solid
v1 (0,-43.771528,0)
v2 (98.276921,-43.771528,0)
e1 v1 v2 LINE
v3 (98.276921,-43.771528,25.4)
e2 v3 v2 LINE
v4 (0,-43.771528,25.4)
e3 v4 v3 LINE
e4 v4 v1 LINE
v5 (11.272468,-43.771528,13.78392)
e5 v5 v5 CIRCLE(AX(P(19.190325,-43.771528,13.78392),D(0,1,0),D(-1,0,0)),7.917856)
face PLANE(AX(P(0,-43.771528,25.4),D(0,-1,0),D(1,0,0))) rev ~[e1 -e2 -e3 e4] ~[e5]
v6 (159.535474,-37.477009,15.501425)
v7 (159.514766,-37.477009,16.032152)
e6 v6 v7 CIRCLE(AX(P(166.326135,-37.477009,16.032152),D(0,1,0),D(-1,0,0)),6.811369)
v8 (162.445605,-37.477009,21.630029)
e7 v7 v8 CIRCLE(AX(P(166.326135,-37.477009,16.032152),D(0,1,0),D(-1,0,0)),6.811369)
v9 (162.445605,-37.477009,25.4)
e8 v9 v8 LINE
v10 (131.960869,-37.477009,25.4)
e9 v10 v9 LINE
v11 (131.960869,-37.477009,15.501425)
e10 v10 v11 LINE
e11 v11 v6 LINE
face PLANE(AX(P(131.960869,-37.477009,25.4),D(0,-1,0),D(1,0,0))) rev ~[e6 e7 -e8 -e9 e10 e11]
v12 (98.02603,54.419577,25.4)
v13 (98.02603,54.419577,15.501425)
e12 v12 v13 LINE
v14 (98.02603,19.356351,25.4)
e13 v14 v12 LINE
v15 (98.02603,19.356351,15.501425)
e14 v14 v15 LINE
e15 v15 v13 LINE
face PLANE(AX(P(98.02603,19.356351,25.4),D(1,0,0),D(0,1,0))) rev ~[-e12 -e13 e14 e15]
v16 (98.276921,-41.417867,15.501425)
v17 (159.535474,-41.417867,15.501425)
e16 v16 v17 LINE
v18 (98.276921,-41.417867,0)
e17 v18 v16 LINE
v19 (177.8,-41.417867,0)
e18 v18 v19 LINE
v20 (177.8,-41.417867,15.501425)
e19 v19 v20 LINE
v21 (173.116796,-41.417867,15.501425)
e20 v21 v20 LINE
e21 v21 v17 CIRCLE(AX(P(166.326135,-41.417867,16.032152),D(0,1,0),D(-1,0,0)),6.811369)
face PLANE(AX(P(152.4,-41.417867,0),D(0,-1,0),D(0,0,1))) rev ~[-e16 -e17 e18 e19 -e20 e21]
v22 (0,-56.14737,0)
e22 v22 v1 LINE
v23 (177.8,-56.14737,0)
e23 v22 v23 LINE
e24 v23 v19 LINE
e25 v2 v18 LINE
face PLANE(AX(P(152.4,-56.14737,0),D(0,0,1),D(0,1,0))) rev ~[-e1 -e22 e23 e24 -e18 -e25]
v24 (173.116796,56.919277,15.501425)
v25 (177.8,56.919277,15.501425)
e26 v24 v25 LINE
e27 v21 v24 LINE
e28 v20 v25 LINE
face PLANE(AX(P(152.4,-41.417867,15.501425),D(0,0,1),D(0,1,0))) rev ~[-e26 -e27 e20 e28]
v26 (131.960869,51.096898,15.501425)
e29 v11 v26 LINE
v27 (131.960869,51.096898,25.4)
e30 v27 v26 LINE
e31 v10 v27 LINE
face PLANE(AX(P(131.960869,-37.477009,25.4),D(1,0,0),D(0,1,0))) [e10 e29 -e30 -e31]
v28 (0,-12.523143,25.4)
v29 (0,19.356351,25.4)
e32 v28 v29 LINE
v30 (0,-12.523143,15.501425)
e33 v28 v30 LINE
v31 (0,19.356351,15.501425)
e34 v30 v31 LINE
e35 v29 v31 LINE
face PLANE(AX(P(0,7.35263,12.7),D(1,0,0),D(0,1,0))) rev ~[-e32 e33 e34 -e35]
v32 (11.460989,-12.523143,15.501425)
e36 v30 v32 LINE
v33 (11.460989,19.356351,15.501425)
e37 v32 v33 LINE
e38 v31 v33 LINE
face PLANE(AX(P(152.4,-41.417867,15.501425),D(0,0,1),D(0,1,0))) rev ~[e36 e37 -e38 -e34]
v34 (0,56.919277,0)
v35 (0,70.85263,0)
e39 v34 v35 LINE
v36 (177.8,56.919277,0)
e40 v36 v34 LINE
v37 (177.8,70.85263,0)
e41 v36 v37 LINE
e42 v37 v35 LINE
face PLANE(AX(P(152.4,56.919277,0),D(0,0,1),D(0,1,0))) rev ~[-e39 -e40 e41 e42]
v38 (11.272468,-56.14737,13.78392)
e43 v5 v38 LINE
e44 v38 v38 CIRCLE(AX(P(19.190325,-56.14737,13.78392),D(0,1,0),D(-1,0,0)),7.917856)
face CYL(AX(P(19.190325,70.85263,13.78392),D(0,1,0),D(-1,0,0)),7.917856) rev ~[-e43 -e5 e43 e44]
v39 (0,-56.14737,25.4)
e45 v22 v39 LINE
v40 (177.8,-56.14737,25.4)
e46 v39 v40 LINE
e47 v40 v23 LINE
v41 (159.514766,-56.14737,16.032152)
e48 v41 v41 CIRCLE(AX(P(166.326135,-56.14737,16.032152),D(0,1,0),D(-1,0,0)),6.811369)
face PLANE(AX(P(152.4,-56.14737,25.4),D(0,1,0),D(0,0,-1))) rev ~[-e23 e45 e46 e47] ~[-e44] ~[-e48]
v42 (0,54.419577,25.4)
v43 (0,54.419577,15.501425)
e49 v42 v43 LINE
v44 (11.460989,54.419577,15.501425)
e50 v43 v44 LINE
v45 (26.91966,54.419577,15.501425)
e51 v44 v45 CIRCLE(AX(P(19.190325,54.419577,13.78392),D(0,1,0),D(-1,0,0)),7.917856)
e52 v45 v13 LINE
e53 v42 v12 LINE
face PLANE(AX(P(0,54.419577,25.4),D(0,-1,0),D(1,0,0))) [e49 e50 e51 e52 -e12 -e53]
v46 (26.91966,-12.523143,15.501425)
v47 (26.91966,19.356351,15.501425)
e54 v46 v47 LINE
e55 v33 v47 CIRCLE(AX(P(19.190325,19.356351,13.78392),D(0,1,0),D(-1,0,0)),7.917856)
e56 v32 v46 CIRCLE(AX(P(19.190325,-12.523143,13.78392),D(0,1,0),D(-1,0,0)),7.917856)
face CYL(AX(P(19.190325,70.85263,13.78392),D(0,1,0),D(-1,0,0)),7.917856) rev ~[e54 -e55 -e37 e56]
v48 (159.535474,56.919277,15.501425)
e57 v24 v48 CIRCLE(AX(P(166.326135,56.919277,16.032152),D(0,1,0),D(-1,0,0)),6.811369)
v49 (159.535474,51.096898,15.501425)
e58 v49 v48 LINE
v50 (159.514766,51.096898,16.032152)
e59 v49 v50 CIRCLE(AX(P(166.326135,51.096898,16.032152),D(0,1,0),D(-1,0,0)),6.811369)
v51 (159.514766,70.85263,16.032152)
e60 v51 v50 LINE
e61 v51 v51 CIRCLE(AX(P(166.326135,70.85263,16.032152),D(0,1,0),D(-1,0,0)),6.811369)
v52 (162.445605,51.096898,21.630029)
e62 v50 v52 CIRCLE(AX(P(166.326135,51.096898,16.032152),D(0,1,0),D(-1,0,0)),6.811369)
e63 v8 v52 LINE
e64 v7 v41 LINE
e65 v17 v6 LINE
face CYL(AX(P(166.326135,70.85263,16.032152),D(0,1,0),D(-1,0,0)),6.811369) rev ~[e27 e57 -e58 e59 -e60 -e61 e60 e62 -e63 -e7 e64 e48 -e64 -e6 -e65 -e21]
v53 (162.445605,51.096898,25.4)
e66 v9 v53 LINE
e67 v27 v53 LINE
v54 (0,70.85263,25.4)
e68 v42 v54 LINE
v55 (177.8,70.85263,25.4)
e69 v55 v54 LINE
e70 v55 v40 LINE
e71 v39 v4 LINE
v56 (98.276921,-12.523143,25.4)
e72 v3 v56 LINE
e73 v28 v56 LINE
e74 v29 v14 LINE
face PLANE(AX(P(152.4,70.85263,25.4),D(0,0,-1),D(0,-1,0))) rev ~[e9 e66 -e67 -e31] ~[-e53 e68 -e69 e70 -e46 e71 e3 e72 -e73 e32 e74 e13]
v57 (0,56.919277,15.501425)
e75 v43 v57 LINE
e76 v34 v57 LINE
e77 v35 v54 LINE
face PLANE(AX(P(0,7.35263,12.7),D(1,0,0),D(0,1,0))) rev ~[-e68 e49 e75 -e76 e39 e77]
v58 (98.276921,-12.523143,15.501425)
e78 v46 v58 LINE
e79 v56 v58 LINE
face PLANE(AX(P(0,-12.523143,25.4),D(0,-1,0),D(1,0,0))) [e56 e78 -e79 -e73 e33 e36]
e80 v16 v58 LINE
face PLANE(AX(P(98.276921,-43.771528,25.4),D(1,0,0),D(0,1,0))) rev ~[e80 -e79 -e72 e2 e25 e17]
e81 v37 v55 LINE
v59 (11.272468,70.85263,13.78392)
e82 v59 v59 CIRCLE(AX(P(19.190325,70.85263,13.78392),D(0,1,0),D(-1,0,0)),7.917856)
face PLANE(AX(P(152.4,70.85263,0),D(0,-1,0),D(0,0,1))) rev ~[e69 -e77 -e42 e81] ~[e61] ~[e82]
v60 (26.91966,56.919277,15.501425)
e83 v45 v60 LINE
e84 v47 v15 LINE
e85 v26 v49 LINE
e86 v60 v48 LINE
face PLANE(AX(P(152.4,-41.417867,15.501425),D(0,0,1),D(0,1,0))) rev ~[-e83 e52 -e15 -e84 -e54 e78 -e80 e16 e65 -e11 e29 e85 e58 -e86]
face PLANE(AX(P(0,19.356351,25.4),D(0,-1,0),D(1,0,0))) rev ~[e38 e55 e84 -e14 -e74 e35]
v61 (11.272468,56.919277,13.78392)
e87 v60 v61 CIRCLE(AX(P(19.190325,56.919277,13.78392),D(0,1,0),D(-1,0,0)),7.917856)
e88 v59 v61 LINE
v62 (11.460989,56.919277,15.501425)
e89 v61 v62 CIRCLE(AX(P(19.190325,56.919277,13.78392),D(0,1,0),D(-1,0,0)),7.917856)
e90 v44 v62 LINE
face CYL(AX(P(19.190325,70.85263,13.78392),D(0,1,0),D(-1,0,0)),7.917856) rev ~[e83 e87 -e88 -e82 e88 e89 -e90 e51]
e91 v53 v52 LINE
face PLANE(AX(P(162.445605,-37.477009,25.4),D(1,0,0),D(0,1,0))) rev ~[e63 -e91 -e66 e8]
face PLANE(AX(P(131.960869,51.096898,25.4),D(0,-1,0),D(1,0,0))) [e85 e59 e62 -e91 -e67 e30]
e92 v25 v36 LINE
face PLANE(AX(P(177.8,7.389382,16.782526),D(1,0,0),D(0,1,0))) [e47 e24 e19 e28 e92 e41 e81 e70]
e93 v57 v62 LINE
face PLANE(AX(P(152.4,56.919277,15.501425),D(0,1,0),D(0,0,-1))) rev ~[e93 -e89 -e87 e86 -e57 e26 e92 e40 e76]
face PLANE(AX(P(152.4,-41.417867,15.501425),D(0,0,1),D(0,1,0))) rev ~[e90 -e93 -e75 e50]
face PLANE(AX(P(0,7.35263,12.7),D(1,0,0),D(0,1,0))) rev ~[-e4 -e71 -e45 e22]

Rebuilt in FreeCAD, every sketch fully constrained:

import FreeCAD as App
import Part
import Sketcher
from FreeCAD import Vector
Q = App.Units.Quantity

doc = App.newDocument("Part")
body = doc.addObject("PartDesign::Body", "Body")

sketch1 = doc.addObject("Sketcher::SketchObject", "Sketch")
body.addObject(sketch1)
sketch1.AttachmentSupport = (doc.YZ_Plane, [""])
sketch1.MapMode = "FlatFace"
sketch1.addGeometry([
    Part.LineSegment(Vector(-56, 25, 0), Vector(-56, 0, 0)),
    Part.LineSegment(Vector(-56, 0, 0), Vector(71, 0, 0)),
    Part.LineSegment(Vector(71, 0, 0), Vector(71, 25, 0)),
    Part.LineSegment(Vector(71, 25, 0), Vector(-56, 25, 0)),
], False)
sketch1.addConstraint([
    Sketcher.Constraint("Coincident", 0, 2, 1, 1),
    Sketcher.Constraint("Coincident", 1, 2, 2, 1),
    Sketcher.Constraint("Coincident", 2, 2, 3, 1),
    Sketcher.Constraint("Coincident", 3, 2, 0, 1),
    Sketcher.Constraint("Vertical", 0),
    Sketcher.Constraint("Horizontal", 1),
    Sketcher.Constraint("Vertical", 2),
    Sketcher.Constraint("Horizontal", 3),
    Sketcher.Constraint("PointOnObject", 0, 2, -1),
    Sketcher.Constraint("DistanceX", 1, 1, 1, 2, Q("5 in")),
    Sketcher.Constraint("DistanceY", 0, 2, 0, 1, Q("1 in")),
    Sketcher.Constraint("DistanceX", 0, 2, -1, 1, 56.14737),
])
pad1 = doc.addObject("PartDesign::Pad", "Pad")
body.addObject(pad1)
pad1.Profile = sketch1
pad1.Length = Q("6 in")

sketch2 = doc.addObject("Sketcher::SketchObject", "Sketch001")
body.addObject(sketch2)
sketch2.AttachmentSupport = (doc.YZ_Plane, [""])
sketch2.MapMode = "FlatFace"
sketch2.AttachmentOffset = App.Placement(Vector(0, 0, 6 * 25.4), App.Rotation())
sketch2.addGeometry([
    Part.LineSegment(Vector(-41, 16, 0), Vector(-41, 0, 0)),
    Part.LineSegment(Vector(-41, 0, 0), Vector(57, 0, 0)),
    Part.LineSegment(Vector(57, 0, 0), Vector(57, 16, 0)),
    Part.LineSegment(Vector(57, 16, 0), Vector(-41, 16, 0)),
], False)
sketch2.addConstraint([
    Sketcher.Constraint("Coincident", 0, 2, 1, 1),
    Sketcher.Constraint("Coincident", 1, 2, 2, 1),
    Sketcher.Constraint("Coincident", 2, 2, 3, 1),
    Sketcher.Constraint("Coincident", 3, 2, 0, 1),
    Sketcher.Constraint("Vertical", 0),
    Sketcher.Constraint("Horizontal", 1),
    Sketcher.Constraint("Vertical", 2),
    Sketcher.Constraint("Horizontal", 3),
    Sketcher.Constraint("PointOnObject", 0, 2, -1),
    Sketcher.Constraint("DistanceX", 1, 1, 1, 2, 98.337144),
    Sketcher.Constraint("DistanceY", 0, 2, 0, 1, 15.501425),
    Sketcher.Constraint("DistanceX", 0, 2, -1, 1, 41.417867),
])
pocket1 = doc.addObject("PartDesign::Pocket", "Pocket")
body.addObject(pocket1)
pocket1.Profile = sketch2
pocket1.Type = "ThroughAll"

sketch3 = doc.addObject("Sketcher::SketchObject", "Sketch002")
body.addObject(sketch3)
sketch3.AttachmentSupport = (doc.YZ_Plane, [""])
sketch3.MapMode = "FlatFace"
sketch3.AttachmentOffset = App.Placement(Vector(0, 0, 6 * 25.4), App.Rotation())
sketch3.addGeometry([
    Part.LineSegment(Vector(71, 25, 0), Vector(-56, 25, 0)),
    Part.LineSegment(Vector(-56, 25, 0), Vector(-56, 0, 0)),
    Part.LineSegment(Vector(-56, 0, 0), Vector(-41, 0, 0)),
    Part.LineSegment(Vector(-41, 0, 0), Vector(-41, 16, 0)),
    Part.LineSegment(Vector(-41, 16, 0), Vector(57, 16, 0)),
    Part.LineSegment(Vector(57, 16, 0), Vector(57, 0, 0)),
    Part.LineSegment(Vector(57, 0, 0), Vector(71, 0, 0)),
    Part.LineSegment(Vector(71, 0, 0), Vector(71, 25, 0)),
], False)
sketch3.addConstraint([
    Sketcher.Constraint("Coincident", 0, 2, 1, 1),
    Sketcher.Constraint("Coincident", 1, 2, 2, 1),
    Sketcher.Constraint("Coincident", 2, 2, 3, 1),
    Sketcher.Constraint("Coincident", 3, 2, 4, 1),
    Sketcher.Constraint("Coincident", 4, 2, 5, 1),
    Sketcher.Constraint("Coincident", 5, 2, 6, 1),
    Sketcher.Constraint("Coincident", 6, 2, 7, 1),
    Sketcher.Constraint("Coincident", 7, 2, 0, 1),
    Sketcher.Constraint("Horizontal", 0),
    Sketcher.Constraint("Vertical", 1),
    Sketcher.Constraint("Horizontal", 2),
    Sketcher.Constraint("Vertical", 3),
    Sketcher.Constraint("Horizontal", 4),
    Sketcher.Constraint("Vertical", 5),
    Sketcher.Constraint("Horizontal", 6),
    Sketcher.Constraint("Vertical", 7),
    Sketcher.Constraint("PointOnObject", 1, 2, -1),
    Sketcher.Constraint("PointOnObject", 5, 2, -1),
    Sketcher.Constraint("DistanceX", 0, 2, 0, 1, Q("5 in")),
    Sketcher.Constraint("DistanceY", 1, 2, 1, 1, Q("1 in")),
    Sketcher.Constraint("DistanceX", 2, 1, 2, 2, 14.729503),
    Sketcher.Constraint("DistanceX", 4, 1, 4, 2, 98.337144),
    Sketcher.Constraint("DistanceY", 3, 1, 3, 2, 15.501425),
    Sketcher.Constraint("DistanceX", 0, 2, -1, 1, 56.14737),
])
pad2 = doc.addObject("PartDesign::Pad", "Pad001")
body.addObject(pad2)
pad2.Profile = sketch3
pad2.Length = Q("1 in")

sketch4 = doc.addObject("Sketcher::SketchObject", "Sketch003")
body.addObject(sketch4)
sketch4.AttachmentSupport = (doc.XZ_Plane, [""])
sketch4.MapMode = "FlatFace"
sketch4.AttachmentOffset = App.Placement(Vector(0, 0, -70.85263), App.Rotation())
sketch4.addGeometry(Part.Circle(Vector(166, 16, 0), Vector(0, 0, 1), 7), False)
sketch4.addConstraint([
    Sketcher.Constraint("Diameter", 0, 13.622738),
    Sketcher.Constraint("DistanceY", -1, 1, 0, 3, 16.032152),
    Sketcher.Constraint("DistanceX", -1, 1, 0, 3, 166.326135),
])
pocket2 = doc.addObject("PartDesign::Pocket", "Pocket001")
body.addObject(pocket2)
pocket2.Profile = sketch4
pocket2.Type = "ThroughAll"
pocket2.Reversed = True

sketch5 = doc.addObject("Sketcher::SketchObject", "Sketch004")
body.addObject(sketch5)
sketch5.AttachmentSupport = (doc.XZ_Plane, [""])
sketch5.MapMode = "FlatFace"
sketch5.AttachmentOffset = App.Placement(Vector(0, 0, -70.85263), App.Rotation())
sketch5.addGeometry(Part.Circle(Vector(19, 14, 0), Vector(0, 0, 1), 8), False)
sketch5.addConstraint([
    Sketcher.Constraint("Diameter", 0, 15.835713),
    Sketcher.Constraint("DistanceY", -1, 1, 0, 3, 13.78392),
    Sketcher.Constraint("DistanceX", -1, 1, 0, 3, 19.190325),
])
pocket3 = doc.addObject("PartDesign::Pocket", "Pocket002")
body.addObject(pocket3)
pocket3.Profile = sketch5
pocket3.Type = "ThroughAll"
pocket3.Reversed = True

sketch6 = doc.addObject("Sketcher::SketchObject", "Sketch005")
body.addObject(sketch6)
sketch6.AttachmentSupport = (doc.XY_Plane, [""])
sketch6.MapMode = "FlatFace"
sketch6.AttachmentOffset = App.Placement(Vector(0, 0, 1 * 25.4), App.Rotation())
sketch6.addGeometry([
    Part.LineSegment(Vector(0, -13, 0), Vector(0, -44, 0)),
    Part.LineSegment(Vector(0, -44, 0), Vector(98, -44, 0)),
    Part.LineSegment(Vector(98, -44, 0), Vector(98, -13, 0)),
    Part.LineSegment(Vector(98, -13, 0), Vector(0, -13, 0)),
], False)
sketch6.addConstraint([
    Sketcher.Constraint("Coincident", 0, 2, 1, 1),
    Sketcher.Constraint("Coincident", 1, 2, 2, 1),
    Sketcher.Constraint("Coincident", 2, 2, 3, 1),
    Sketcher.Constraint("Coincident", 3, 2, 0, 1),
    Sketcher.Constraint("Vertical", 0),
    Sketcher.Constraint("Horizontal", 1),
    Sketcher.Constraint("Vertical", 2),
    Sketcher.Constraint("Horizontal", 3),
    Sketcher.Constraint("PointOnObject", 0, 2, -2),
    Sketcher.Constraint("DistanceX", 1, 1, 1, 2, 98.276921),
    Sketcher.Constraint("DistanceY", 0, 2, 0, 1, 31.248385),
    Sketcher.Constraint("DistanceY", 0, 2, -1, 1, 43.771528),
])
pocket4 = doc.addObject("PartDesign::Pocket", "Pocket003")
body.addObject(pocket4)
pocket4.Profile = sketch6
pocket4.Type = "ThroughAll"

sketch7 = doc.addObject("Sketcher::SketchObject", "Sketch006")
body.addObject(sketch7)
sketch7.AttachmentSupport = (doc.XY_Plane, [""])
sketch7.MapMode = "FlatFace"
sketch7.AttachmentOffset = App.Placement(Vector(0, 0, 1 * 25.4), App.Rotation())
sketch7.addGeometry([
    Part.LineSegment(Vector(0, 54, 0), Vector(0, 19, 0)),
    Part.LineSegment(Vector(0, 19, 0), Vector(98, 19, 0)),
    Part.LineSegment(Vector(98, 19, 0), Vector(98, 54, 0)),
    Part.LineSegment(Vector(98, 54, 0), Vector(0, 54, 0)),
], False)
sketch7.addConstraint([
    Sketcher.Constraint("Coincident", 0, 2, 1, 1),
    Sketcher.Constraint("Coincident", 1, 2, 2, 1),
    Sketcher.Constraint("Coincident", 2, 2, 3, 1),
    Sketcher.Constraint("Coincident", 3, 2, 0, 1),
    Sketcher.Constraint("Vertical", 0),
    Sketcher.Constraint("Horizontal", 1),
    Sketcher.Constraint("Vertical", 2),
    Sketcher.Constraint("Horizontal", 3),
    Sketcher.Constraint("PointOnObject", 0, 2, -2),
    Sketcher.Constraint("DistanceX", 1, 1, 1, 2, 98.02603),
    Sketcher.Constraint("DistanceY", 0, 2, 0, 1, 35.063226),
    Sketcher.Constraint("DistanceY", -1, 1, 0, 2, 19.356351),
])
pocket5 = doc.addObject("PartDesign::Pocket", "Pocket004")
body.addObject(pocket5)
pocket5.Profile = sketch7
pocket5.Type = "ThroughAll"

sketch8 = doc.addObject("Sketcher::SketchObject", "Sketch007")
body.addObject(sketch8)
sketch8.AttachmentSupport = (doc.XY_Plane, [""])
sketch8.MapMode = "FlatFace"
sketch8.AttachmentOffset = App.Placement(Vector(0, 0, 1 * 25.4), App.Rotation())
sketch8.addGeometry([
    Part.LineSegment(Vector(132, 51, 0), Vector(132, -37, 0)),
    Part.LineSegment(Vector(132, -37, 0), Vector(162, -37, 0)),
    Part.LineSegment(Vector(162, -37, 0), Vector(162, 51, 0)),
    Part.LineSegment(Vector(162, 51, 0), Vector(132, 51, 0)),
], False)
sketch8.addConstraint([
    Sketcher.Constraint("Coincident", 0, 2, 1, 1),
    Sketcher.Constraint("Coincident", 1, 2, 2, 1),
    Sketcher.Constraint("Coincident", 2, 2, 3, 1),
    Sketcher.Constraint("Coincident", 3, 2, 0, 1),
    Sketcher.Constraint("Vertical", 0),
    Sketcher.Constraint("Horizontal", 1),
    Sketcher.Constraint("Vertical", 2),
    Sketcher.Constraint("Horizontal", 3),
    Sketcher.Constraint("DistanceX", 1, 1, 1, 2, 30.484736),
    Sketcher.Constraint("DistanceY", 0, 2, 0, 1, 88.573907),
    Sketcher.Constraint("DistanceX", -1, 1, 0, 2, 131.960869),
    Sketcher.Constraint("DistanceY", 0, 2, -1, 1, 37.477009),
])
pocket6 = doc.addObject("PartDesign::Pocket", "Pocket005")
body.addObject(pocket6)
pocket6.Profile = sketch8
pocket6.Type = "ThroughAll"

doc.recompute()
